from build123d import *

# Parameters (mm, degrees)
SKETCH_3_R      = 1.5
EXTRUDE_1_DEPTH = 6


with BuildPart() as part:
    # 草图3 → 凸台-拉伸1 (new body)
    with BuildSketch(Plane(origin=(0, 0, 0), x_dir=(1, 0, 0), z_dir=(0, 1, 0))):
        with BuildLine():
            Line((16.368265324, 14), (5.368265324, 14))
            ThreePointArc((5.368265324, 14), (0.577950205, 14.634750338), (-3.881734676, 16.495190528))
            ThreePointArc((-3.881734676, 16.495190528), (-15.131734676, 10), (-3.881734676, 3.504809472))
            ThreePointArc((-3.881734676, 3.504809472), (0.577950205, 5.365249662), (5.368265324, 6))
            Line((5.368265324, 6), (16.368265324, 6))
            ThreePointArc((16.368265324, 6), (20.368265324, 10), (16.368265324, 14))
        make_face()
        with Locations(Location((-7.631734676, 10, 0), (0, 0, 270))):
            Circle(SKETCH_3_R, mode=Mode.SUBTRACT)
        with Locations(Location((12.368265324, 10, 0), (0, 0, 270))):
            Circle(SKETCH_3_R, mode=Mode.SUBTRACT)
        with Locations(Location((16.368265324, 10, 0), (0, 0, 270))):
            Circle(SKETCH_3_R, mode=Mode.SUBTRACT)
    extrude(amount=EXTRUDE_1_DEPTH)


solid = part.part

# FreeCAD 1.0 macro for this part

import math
import FreeCAD as App
import Part
import Sketcher

V = App.Vector

doc = App.newDocument("Part")
body = doc.addObject("PartDesign::Body", "Body")

sketch1 = doc.addObject("Sketcher::SketchObject", "Sketch")
body.addObject(sketch1)
sketch1.AttachmentSupport = (doc.XZ_Plane, [""])
sketch1.MapMode = "FlatFace"
sketch1.addGeometry([
    Part.LineSegment(V(16.368265, -14, 0), V(5.368265, -14, 0)),
    Part.ArcOfCircle(Part.Circle(V(5.368265, -32.39308, 0), V(0, 0, 1), 18.39308), math.radians(90), math.radians(120.192482)),
    Part.ArcOfCircle(Part.Circle(V(-7.631735, -10, 0), V(0, 0, 1), 7.5), math.radians(60), math.radians(300)),
    Part.ArcOfCircle(Part.Circle(V(5.368265, 12.39308, 0), V(0, 0, 1), 18.39308), math.radians(-120.192482), math.radians(-90)),
    Part.LineSegment(V(5.368265, -6, 0), V(16.368265, -6, 0)),
    Part.ArcOfCircle(Part.Circle(V(16.368265, -10, 0), V(0, 0, 1), 4), math.radians(-90), math.radians(90)),
    Part.Circle(V(-7.631735, -10, 0), V(0, 0, 1), 1.5),
    Part.Circle(V(12.368265, -10, 0), V(0, 0, 1), 1.5),
    Part.Circle(V(16.368265, -10, 0), V(0, 0, 1), 1.5),
], False)
sketch1.addConstraint([
    Sketcher.Constraint("Tangent", 0, 2, 1, 1),
    Sketcher.Constraint("Coincident", 1, 2, 2, 2),
    Sketcher.Constraint("Coincident", 2, 1, 3, 1),
    Sketcher.Constraint("Tangent", 3, 2, 4, 1),
    Sketcher.Constraint("Tangent", 4, 2, 5, 2),
    Sketcher.Constraint("Tangent", 5, 1, 0, 1),
    Sketcher.Constraint("Horizontal", 0),
    Sketcher.Constraint("Horizontal", 4),
    Sketcher.Constraint("Coincident", 6, 3, 2, 3),
    Sketcher.Constraint("Coincident", 8, 3, 5, 3),
    Sketcher.Constraint("Equal", 1, 3),
    Sketcher.Constraint("Equal", 6, 7),
    Sketcher.Constraint("Equal", 7, 8),
    Sketcher.Constraint("Horizontal", 2, 3, 5, 3),
    Sketcher.Constraint("Horizontal", 6, 3, 7, 3),
    Sketcher.Constraint("Vertical", 1, 3, 3, 3),
    Sketcher.Constraint("Diameter", 6, 3.0),
    Sketcher.Constraint("Radius", 5, 4.0),
    Sketcher.Constraint("Radius", 2, 7.5),
    Sketcher.Constraint("DistanceX", 0, 2, 0, 1, 11.0),
    Sketcher.Constraint("DistanceY", 2, 3, -1, 1, 10.0),
    Sketcher.Constraint("DistanceX", 2, 3, 1, 3, 13.0),
    Sketcher.Constraint("DistanceX", 7, 3, 5, 3, 4.0),
    Sketcher.Constraint("Radius", 1, 18.39308),
    Sketcher.Constraint("DistanceX", -1, 1, 1, 3, 5.368265),
])
pad1 = doc.addObject("PartDesign::Pad", "Pad")
body.addObject(pad1)
pad1.Profile = sketch1
pad1.Length = 6
pad1.Reversed = True

doc.recompute()
